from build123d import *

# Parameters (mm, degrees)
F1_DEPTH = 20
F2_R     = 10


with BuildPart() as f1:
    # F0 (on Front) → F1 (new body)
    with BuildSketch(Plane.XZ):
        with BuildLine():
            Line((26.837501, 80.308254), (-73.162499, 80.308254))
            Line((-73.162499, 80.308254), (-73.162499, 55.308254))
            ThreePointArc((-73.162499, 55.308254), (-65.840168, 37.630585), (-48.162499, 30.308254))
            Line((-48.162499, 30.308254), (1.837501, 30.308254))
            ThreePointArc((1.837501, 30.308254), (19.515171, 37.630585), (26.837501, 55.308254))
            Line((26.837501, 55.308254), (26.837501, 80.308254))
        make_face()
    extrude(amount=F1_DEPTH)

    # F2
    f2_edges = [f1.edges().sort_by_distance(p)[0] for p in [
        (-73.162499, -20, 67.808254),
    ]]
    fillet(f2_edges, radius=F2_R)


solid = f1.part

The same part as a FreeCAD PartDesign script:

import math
import FreeCAD as App
import Part
import Sketcher
from FreeCAD import Vector


def edges_at(feature, points):
    """Names of the edges that pass closest to the given points."""
    edges = feature.Shape.Edges
    near = lambda p: min(range(len(edges)), key=lambda i: edges[i].distToShape(Part.Vertex(*p))[0])
    return sorted({f"Edge{near(p) + 1}" for p in points})

doc = App.newDocument("Part")
body = doc.addObject("PartDesign::Body", "Body")

# Sketch on XZ plane
sketch1 = body.newObject("Sketcher::SketchObject", "Sketch")
sketch1.AttachmentSupport = (doc.getObject("XZ_Plane"), [""])
sketch1.MapMode = "FlatFace"
sketch1.addGeometry(Part.LineSegment(Vector(26.837501, 80.308254, 0), Vector(-73.162499, 80.308254, 0)), False)
sketch1.addGeometry(Part.LineSegment(Vector(-73.162499, 80.308254, 0), Vector(-73.162499, 55.308254, 0)), False)
sketch1.addGeometry(Part.ArcOfCircle(Part.Circle(Vector(-48.162497, 55.308256, 0), Vector(0, 0, 1), 25.000002), math.radians(-179.999996), math.radians(-90.000004)), False)
sketch1.addGeometry(Part.LineSegment(Vector(-48.162499, 30.308254, 0), Vector(1.837501, 30.308254, 0)), False)
sketch1.addGeometry(Part.ArcOfCircle(Part.Circle(Vector(1.837501, 55.308254, 0), Vector(0, 0, 1), 25), math.radians(-90), math.radians(0)), False)
sketch1.addGeometry(Part.LineSegment(Vector(26.837501, 55.308254, 0), Vector(26.837501, 80.308254, 0)), False)
sketch1.addConstraint(Sketcher.Constraint("Coincident", 0, 2, 1, 1))
sketch1.addConstraint(Sketcher.Constraint("Tangent", 1, 2, 2, 1))
sketch1.addConstraint(Sketcher.Constraint("Tangent", 2, 2, 3, 1))
sketch1.addConstraint(Sketcher.Constraint("Tangent", 3, 2, 4, 1))
sketch1.addConstraint(Sketcher.Constraint("Tangent", 4, 2, 5, 1))
sketch1.addConstraint(Sketcher.Constraint("Coincident", 5, 2, 0, 1))
sketch1.addConstraint(Sketcher.Constraint("Horizontal", 0))
sketch1.addConstraint(Sketcher.Constraint("Vertical", 1))
sketch1.addConstraint(Sketcher.Constraint("Horizontal", 3))
sketch1.addConstraint(Sketcher.Constraint("Vertical", 5))
sketch1.addConstraint(Sketcher.Constraint("Equal", 2, 4))
sketch1.addConstraint(Sketcher.Constraint("Radius", 2, 25.000002))
sketch1.addConstraint(Sketcher.Constraint("DistanceX", 0, 2, 0, 1, 100.0))
sketch1.addConstraint(Sketcher.Constraint("DistanceY", 1, 2, 1, 1, 25.0))
sketch1.addConstraint(Sketcher.Constraint("DistanceX", -1, 1, 4, 3, 1.837501))
sketch1.addConstraint(Sketcher.Constraint("DistanceY", -1, 1, 2, 3, 55.308256))
pad1 = body.newObject("PartDesign::Pad", "Pad")
pad1.Profile = sketch1
pad1.Length = 20
doc.recompute()

fillet = body.newObject("PartDesign::Fillet", "Fillet")
fillet.Base = (pad1, edges_at(pad1, [(-73.162, -20, 67.808)]))
fillet.Radius = 10

doc.recompute()
